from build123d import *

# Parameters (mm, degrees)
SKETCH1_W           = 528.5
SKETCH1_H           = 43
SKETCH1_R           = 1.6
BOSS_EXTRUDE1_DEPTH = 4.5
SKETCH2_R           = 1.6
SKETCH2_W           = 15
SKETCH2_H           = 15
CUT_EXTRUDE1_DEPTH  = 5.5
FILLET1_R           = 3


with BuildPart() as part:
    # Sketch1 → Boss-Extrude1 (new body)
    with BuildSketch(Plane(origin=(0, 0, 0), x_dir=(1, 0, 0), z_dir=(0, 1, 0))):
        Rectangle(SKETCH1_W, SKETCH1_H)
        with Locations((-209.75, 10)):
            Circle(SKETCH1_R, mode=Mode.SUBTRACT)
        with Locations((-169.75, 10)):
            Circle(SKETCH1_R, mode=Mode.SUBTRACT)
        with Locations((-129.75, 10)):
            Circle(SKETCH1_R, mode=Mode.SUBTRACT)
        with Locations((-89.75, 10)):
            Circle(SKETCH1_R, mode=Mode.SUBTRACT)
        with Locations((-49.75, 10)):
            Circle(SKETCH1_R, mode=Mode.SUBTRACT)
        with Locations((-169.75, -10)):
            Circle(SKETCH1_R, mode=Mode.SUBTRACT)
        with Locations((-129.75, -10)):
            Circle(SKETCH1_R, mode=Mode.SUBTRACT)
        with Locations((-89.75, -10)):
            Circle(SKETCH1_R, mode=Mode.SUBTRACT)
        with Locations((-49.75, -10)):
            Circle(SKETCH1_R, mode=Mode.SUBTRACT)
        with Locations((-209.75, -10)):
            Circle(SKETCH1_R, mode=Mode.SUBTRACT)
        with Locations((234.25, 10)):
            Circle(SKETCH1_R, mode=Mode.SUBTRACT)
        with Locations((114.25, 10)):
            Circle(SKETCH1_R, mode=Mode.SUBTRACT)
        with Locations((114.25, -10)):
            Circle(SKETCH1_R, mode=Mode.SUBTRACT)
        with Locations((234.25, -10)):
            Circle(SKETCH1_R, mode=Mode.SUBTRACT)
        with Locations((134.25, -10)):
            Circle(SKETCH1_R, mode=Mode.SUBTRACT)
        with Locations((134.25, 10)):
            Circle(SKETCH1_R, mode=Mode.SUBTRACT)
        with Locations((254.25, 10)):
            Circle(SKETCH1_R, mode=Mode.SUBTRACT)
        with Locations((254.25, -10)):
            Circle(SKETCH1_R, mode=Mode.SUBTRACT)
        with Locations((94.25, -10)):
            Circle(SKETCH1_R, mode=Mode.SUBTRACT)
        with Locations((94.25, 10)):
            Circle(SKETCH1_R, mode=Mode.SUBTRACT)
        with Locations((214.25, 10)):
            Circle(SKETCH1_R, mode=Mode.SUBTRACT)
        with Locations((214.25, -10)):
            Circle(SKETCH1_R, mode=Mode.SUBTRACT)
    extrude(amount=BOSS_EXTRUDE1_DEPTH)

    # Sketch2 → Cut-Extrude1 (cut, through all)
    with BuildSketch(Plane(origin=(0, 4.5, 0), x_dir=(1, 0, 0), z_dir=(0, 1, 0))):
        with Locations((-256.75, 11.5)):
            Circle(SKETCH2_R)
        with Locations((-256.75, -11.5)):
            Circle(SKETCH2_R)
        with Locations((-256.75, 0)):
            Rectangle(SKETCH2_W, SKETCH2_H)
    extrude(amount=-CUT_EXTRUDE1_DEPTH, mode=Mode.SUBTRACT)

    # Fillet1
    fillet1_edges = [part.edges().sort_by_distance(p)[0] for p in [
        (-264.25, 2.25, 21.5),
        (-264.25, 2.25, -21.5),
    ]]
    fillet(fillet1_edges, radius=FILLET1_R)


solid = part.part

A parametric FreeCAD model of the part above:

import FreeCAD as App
import Part
import Sketcher
from FreeCAD import Vector
Q = App.Units.Quantity


def edges_at(feature, points):
    """Names of the edges that pass closest to the given points."""
    edges = feature.Shape.Edges
    near = lambda p: min(range(len(edges)), key=lambda i: edges[i].distToShape(Part.Vertex(*p))[0])
    return sorted({f"Edge{near(p) + 1}" for p in points})


def add_polygon(sketch, points):
    """Adds a closed chain of lines whose ends are joined by coincident constraints."""
    first, n = sketch.GeometryCount, len(points)
    for a, b in zip(points, points[1:] + points[:1]):
        sketch.addGeometry(Part.LineSegment(App.Vector(*a, 0), App.Vector(*b, 0)), False)
    for i in range(n):
        sketch.addConstraint(Sketcher.Constraint("Coincident", first + i, 2, first + (i + 1) % n, 1))

doc = App.newDocument("Part")
body = doc.addObject("PartDesign::Body", "Body")

sketch1 = body.newObject("Sketcher::SketchObject", "Sketch")
sketch1.AttachmentSupport = (doc.getObject("XZ_Plane"), [""])
sketch1.MapMode = "FlatFace"
add_polygon(sketch1, [(-264.2, -21.5), (-264.2, 21.5), (264.2, 21.5), (264.2, -21.5)])
sketch1.addGeometry(Part.Circle(Vector(-209.8, 10, 0), Vector(0, 0, 1), 1.6), False)
sketch1.addGeometry(Part.Circle(Vector(-169.8, 10, 0), Vector(0, 0, 1), 1.6), False)
sketch1.addGeometry(Part.Circle(Vector(-129.8, 10, 0), Vector(0, 0, 1), 1.6), False)
sketch1.addGeometry(Part.Circle(Vector(-89.8, 10, 0), Vector(0, 0, 1), 1.6), False)
sketch1.addGeometry(Part.Circle(Vector(-49.8, 10, 0), Vector(0, 0, 1), 1.6), False)
sketch1.addGeometry(Part.Circle(Vector(94.2, 10, 0), Vector(0, 0, 1), 1.6), False)
sketch1.addGeometry(Part.Circle(Vector(114.2, 10, 0), Vector(0, 0, 1), 1.6), False)
sketch1.addGeometry(Part.Circle(Vector(134.2, 10, 0), Vector(0, 0, 1), 1.6), False)
sketch1.addGeometry(Part.Circle(Vector(214.2, 10, 0), Vector(0, 0, 1), 1.6), False)
sketch1.addGeometry(Part.Circle(Vector(234.2, 10, 0), Vector(0, 0, 1), 1.6), False)
sketch1.addGeometry(Part.Circle(Vector(254.2, 10, 0), Vector(0, 0, 1), 1.6), False)
sketch1.addGeometry(Part.Circle(Vector(-209.8, -10, 0), Vector(0, 0, 1), 1.6), False)
sketch1.addGeometry(Part.Circle(Vector(-169.8, -10, 0), Vector(0, 0, 1), 1.6), False)
sketch1.addGeometry(Part.Circle(Vector(-129.8, -10, 0), Vector(0, 0, 1), 1.6), False)
sketch1.addGeometry(Part.Circle(Vector(-89.8, -10, 0), Vector(0, 0, 1), 1.6), False)
sketch1.addGeometry(Part.Circle(Vector(-49.8, -10, 0), Vector(0, 0, 1), 1.6), False)
sketch1.addGeometry(Part.Circle(Vector(94.2, -10, 0), Vector(0, 0, 1), 1.6), False)
sketch1.addGeometry(Part.Circle(Vector(114.2, -10, 0), Vector(0, 0, 1), 1.6), False)
sketch1.addGeometry(Part.Circle(Vector(134.2, -10, 0), Vector(0, 0, 1), 1.6), False)
sketch1.addGeometry(Part.Circle(Vector(214.2, -10, 0), Vector(0, 0, 1), 1.6), False)
sketch1.addGeometry(Part.Circle(Vector(234.2, -10, 0), Vector(0, 0, 1), 1.6), False)
sketch1.addGeometry(Part.Circle(Vector(254.2, -10, 0), Vector(0, 0, 1), 1.6), False)
sketch1.addConstraint([
    Sketcher.Constraint("Vertical", 0),
    Sketcher.Constraint("Horizontal", 1),
    Sketcher.Constraint("Vertical", 2),
    Sketcher.Constraint("Horizontal", 3),
    Sketcher.Constraint("Equal", 4, 5),
    Sketcher.Constraint("Equal", 5, 6),
    Sketcher.Constraint("Equal", 6, 7),
    Sketcher.Constraint("Equal", 7, 8),
    Sketcher.Constraint("Equal", 8, 9),
    Sketcher.Constraint("Equal", 9, 10),
    Sketcher.Constraint("Equal", 10, 11),
    Sketcher.Constraint("Equal", 11, 12),
    Sketcher.Constraint("Equal", 12, 13),
    Sketcher.Constraint("Equal", 13, 14),
    Sketcher.Constraint("Equal", 14, 15),
    Sketcher.Constraint("Equal", 15, 16),
    Sketcher.Constraint("Equal", 16, 17),
    Sketcher.Constraint("Equal", 17, 18),
    Sketcher.Constraint("Equal", 18, 19),
    Sketcher.Constraint("Equal", 19, 20),
    Sketcher.Constraint("Equal", 20, 21),
    Sketcher.Constraint("Equal", 21, 22),
    Sketcher.Constraint("Equal", 22, 23),
    Sketcher.Constraint("Equal", 23, 24),
    Sketcher.Constraint("Equal", 24, 25),
    Sketcher.Constraint("Symmetric", 0, 2, 2, 2, -1, 1),
    Sketcher.Constraint("Symmetric", 4, 3, 15, 3, -1),
    Sketcher.Constraint("Symmetric", 5, 3, 16, 3, -1),
    Sketcher.Constraint("Symmetric", 6, 3, 17, 3, -1),
    Sketcher.Constraint("Symmetric", 7, 3, 18, 3, -1),
    Sketcher.Constraint("Symmetric", 8, 3, 19, 3, -1),
    Sketcher.Constraint("Symmetric", 9, 3, 20, 3, -1),
    Sketcher.Constraint("Symmetric", 10, 3, 21, 3, -1),
    Sketcher.Constraint("Symmetric", 11, 3, 22, 3, -1),
    Sketcher.Constraint("Symmetric", 12, 3, 23, 3, -1),
    Sketcher.Constraint("Symmetric", 13, 3, 24, 3, -1),
    Sketcher.Constraint("Symmetric", 14, 3, 25, 3, -1),
    Sketcher.Constraint("Horizontal", 4, 3, 5, 3),
    Sketcher.Constraint("Horizontal", 5, 3, 6, 3),
    Sketcher.Constraint("Horizontal", 6, 3, 7, 3),
    Sketcher.Constraint("Horizontal", 7, 3, 8, 3),
    Sketcher.Constraint("Horizontal", 8, 3, 9, 3),
    Sketcher.Constraint("Horizontal", 9, 3, 10, 3),
    Sketcher.Constraint("Horizontal", 10, 3, 11, 3),
    Sketcher.Constraint("Horizontal", 11, 3, 12, 3),
    Sketcher.Constraint("Horizontal", 12, 3, 13, 3),
    Sketcher.Constraint("Horizontal", 13, 3, 14, 3),
    Sketcher.Constraint("Diameter", 4, Q("3.2 mm")),
    Sketcher.Constraint("DistanceY", 0, 1, 0, 2, Q("43 mm")),
    Sketcher.Constraint("DistanceX", 1, 1, 1, 2, Q("528.5 mm")),
    Sketcher.Constraint("DistanceY", -1, 1, 4, 3, Q("10 mm")),
    Sketcher.Constraint("DistanceX", 4, 3, 5, 3, Q("40 mm")),
    Sketcher.Constraint("DistanceX", 5, 3, 6, 3, Q("40 mm")),
    Sketcher.Constraint("DistanceX", 6, 3, 7, 3, Q("40 mm")),
    Sketcher.Constraint("DistanceX", 7, 3, 8, 3, Q("40 mm")),
    Sketcher.Constraint("DistanceX", 8, 3, 9, 3, Q("144 mm")),
    Sketcher.Constraint("DistanceX", 9, 3, 10, 3, Q("20 mm")),
    Sketcher.Constraint("DistanceX", 10, 3, 11, 3, Q("20 mm")),
    Sketcher.Constraint("DistanceX", 11, 3, 12, 3, Q("80 mm")),
    Sketcher.Constraint("DistanceX", 12, 3, 13, 3, Q("20 mm")),
    Sketcher.Constraint("DistanceX", 13, 3, 14, 3, Q("20 mm")),
    Sketcher.Constraint("DistanceX", 14, 3, 1, 2, Q("10 mm")),
])
pad1 = body.newObject("PartDesign::Pad", "Pad")
pad1.Profile = sketch1
pad1.Length = 4.5
pad1.Reversed = True

sketch2 = body.newObject("Sketcher::SketchObject", "Sketch001")
sketch2.AttachmentSupport = (doc.getObject("XZ_Plane"), [""])
sketch2.MapMode = "FlatFace"
sketch2.AttachmentOffset = App.Placement(Vector(0, 0, -4.5), App.Rotation())
sketch2.addGeometry(Part.Circle(Vector(-256.8, -11.5, 0), Vector(0, 0, 1), 1.6), False)
sketch2.addGeometry(Part.Circle(Vector(-256.8, 11.5, 0), Vector(0, 0, 1), 1.6), False)
add_polygon(sketch2, [(-264.2, -7.5), (-264.2, 7.5), (-249.2, 7.5), (-249.2, -7.5)])
sketch2.addConstraint([
    Sketcher.Constraint("Vertical", 2),
    Sketcher.Constraint("Horizontal", 3),
    Sketcher.Constraint("Vertical", 4),
    Sketcher.Constraint("Horizontal", 5),
    Sketcher.Constraint("Equal", 0, 1),
    Sketcher.Constraint("Symmetric", 0, 3, 1, 3, -1),
    Sketcher.Constraint("Equal", 5, 2),
    Sketcher.Constraint("Diameter", 0, Q("3.2 mm")),
    Sketcher.Constraint("DistanceX", 3, 1, 3, 2, Q("15 mm")),
    Sketcher.Constraint("DistanceY", 0, 3, 1, 3, Q("23 mm")),
    Sketcher.Constraint("DistanceY", 2, 2, 1, 3, Q("4 mm")),
    Sketcher.Constraint("DistanceX", 2, 2, 1, 3, Q("7.5 mm")),
    Sketcher.Constraint("DistanceX", 0, 3, -1, 1, Q("256.75 mm")),
])
pocket1 = body.newObject("PartDesign::Pocket", "Pocket")
pocket1.Profile = sketch2
pocket1.Type = "ThroughAll"
pocket1.Reversed = True
doc.recompute()

fillet = body.newObject("PartDesign::Fillet", "Fillet")
fillet.Base = (pocket1, edges_at(pocket1, [(-264.25, 2.25, 21.5), (-264.25, 2.25, -21.5)]))
fillet.Radius = 3

doc.recompute()
